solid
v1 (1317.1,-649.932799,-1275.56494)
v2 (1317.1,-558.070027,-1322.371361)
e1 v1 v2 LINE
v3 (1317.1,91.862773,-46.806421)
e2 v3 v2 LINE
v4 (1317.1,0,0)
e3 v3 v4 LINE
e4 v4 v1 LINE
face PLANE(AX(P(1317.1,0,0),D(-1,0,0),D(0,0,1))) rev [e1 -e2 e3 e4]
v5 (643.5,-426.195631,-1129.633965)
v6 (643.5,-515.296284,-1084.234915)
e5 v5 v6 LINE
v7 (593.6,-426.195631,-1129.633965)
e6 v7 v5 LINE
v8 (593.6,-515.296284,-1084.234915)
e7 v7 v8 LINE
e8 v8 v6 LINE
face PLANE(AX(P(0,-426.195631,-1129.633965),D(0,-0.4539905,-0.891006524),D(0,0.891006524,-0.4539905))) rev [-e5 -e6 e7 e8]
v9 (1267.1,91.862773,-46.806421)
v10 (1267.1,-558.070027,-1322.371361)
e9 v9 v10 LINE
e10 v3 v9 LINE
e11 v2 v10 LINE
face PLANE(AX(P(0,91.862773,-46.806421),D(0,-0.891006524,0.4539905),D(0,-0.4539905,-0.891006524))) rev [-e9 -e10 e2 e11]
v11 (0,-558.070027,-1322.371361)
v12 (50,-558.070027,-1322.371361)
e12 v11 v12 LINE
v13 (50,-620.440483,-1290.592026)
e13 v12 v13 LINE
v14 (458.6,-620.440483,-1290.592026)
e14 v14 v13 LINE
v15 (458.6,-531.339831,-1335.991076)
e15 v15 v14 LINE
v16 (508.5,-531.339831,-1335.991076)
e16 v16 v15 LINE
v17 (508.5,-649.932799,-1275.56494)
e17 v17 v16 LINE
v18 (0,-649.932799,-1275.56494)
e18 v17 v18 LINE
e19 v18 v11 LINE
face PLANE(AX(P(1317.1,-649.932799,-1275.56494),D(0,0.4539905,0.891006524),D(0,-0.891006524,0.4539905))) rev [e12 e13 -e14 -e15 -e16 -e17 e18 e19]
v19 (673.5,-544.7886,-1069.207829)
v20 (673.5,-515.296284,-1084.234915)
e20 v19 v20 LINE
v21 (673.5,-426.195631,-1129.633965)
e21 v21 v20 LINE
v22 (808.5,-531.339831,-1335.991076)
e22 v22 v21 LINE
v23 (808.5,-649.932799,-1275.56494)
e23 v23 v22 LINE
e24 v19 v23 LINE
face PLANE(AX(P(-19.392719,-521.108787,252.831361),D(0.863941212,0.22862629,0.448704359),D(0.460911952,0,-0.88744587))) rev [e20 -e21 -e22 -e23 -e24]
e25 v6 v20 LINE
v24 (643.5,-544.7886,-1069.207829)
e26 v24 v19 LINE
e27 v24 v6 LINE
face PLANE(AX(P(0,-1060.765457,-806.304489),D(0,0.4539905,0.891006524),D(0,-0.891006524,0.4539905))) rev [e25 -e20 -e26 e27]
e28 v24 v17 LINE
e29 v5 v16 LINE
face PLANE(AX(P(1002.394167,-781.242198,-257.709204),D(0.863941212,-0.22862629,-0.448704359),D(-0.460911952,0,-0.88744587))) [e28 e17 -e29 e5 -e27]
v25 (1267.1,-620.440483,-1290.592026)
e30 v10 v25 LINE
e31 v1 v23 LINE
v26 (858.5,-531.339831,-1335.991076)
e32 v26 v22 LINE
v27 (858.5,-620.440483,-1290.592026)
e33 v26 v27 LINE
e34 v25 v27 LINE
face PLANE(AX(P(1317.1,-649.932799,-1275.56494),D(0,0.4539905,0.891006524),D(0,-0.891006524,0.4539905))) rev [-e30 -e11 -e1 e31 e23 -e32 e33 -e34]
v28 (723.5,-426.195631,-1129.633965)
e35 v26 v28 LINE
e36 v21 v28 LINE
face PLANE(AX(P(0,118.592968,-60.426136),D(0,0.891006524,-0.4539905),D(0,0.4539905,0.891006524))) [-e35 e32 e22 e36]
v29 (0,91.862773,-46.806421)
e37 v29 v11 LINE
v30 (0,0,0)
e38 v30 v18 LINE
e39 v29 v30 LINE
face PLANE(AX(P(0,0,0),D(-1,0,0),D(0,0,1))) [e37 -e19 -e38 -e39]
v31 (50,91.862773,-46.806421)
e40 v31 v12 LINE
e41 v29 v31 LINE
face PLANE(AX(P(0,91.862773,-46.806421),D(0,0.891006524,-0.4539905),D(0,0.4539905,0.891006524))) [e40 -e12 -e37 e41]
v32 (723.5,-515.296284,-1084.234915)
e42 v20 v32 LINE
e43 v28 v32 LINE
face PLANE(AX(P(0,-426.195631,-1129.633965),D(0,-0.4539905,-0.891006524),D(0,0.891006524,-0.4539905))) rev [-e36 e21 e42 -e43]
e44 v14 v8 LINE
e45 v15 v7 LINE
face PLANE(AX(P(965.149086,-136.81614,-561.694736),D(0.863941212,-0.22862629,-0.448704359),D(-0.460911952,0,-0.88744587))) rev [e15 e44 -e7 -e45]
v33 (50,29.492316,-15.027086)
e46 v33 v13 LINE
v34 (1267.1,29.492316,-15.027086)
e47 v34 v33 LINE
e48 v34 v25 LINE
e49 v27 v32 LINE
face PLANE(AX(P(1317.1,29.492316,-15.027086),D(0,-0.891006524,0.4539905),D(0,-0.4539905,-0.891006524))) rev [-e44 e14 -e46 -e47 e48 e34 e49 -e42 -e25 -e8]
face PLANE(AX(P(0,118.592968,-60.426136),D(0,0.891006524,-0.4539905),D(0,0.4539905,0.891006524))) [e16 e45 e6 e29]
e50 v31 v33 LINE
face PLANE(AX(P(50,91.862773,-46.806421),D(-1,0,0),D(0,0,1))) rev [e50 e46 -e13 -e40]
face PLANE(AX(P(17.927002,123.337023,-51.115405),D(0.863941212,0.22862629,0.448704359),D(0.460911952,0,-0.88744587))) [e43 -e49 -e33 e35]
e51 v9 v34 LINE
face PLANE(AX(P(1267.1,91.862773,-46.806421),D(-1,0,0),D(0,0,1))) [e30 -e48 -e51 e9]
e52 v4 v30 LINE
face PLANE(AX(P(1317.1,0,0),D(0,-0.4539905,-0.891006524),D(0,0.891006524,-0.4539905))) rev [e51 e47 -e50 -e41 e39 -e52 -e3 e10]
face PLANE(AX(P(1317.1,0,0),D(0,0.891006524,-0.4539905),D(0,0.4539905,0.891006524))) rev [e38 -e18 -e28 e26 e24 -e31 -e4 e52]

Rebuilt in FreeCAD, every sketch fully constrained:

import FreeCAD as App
import Part
import Sketcher

V = App.Vector
Q = App.Units.Quantity

doc = App.newDocument("Part")
body = doc.addObject("PartDesign::Body", "Body")

# Sketch on YZ plane
sketch1 = body.newObject("Sketcher::SketchObject", "Sketch")
sketch1.AttachmentSupport = (doc.getObject("YZ_Plane"), [""])
sketch1.MapMode = "FlatFace"
sketch1.addGeometry([
    Part.LineSegment(V(0, 0, 0), V(-650, -1276, 0)),
    Part.LineSegment(V(-650, -1276, 0), V(-620, -1291, 0)),
    Part.LineSegment(V(-620, -1291, 0), V(29, -15, 0)),
    Part.LineSegment(V(29, -15, 0), V(0, 0, 0)),
], False)
sketch1.addConstraint([
    Sketcher.Constraint("Coincident", 0, 2, 1, 1),
    Sketcher.Constraint("Coincident", 1, 2, 2, 1),
    Sketcher.Constraint("Coincident", 2, 2, 3, 1),
    Sketcher.Constraint("Coincident", 3, 2, 0, 1),
    Sketcher.Constraint("Coincident", 3, 2, -1, 1),
    Sketcher.Constraint("Perpendicular", 0, 1),
    Sketcher.Constraint("Perpendicular", 1, 2),
    Sketcher.Constraint("Perpendicular", 2, 3),
    Sketcher.Constraint("Angle", 0, Q("-117 deg")),
    Sketcher.Constraint("Distance", 0, Q("1431.6 mm")),
    Sketcher.Constraint("Distance", 1, Q("33.1 mm")),
])
pad1 = body.newObject("PartDesign::Pad", "Pad")
pad1.Profile = sketch1
pad1.Length = 1317.1

# Sketch on an angled plane
sketch2 = body.newObject("Sketcher::SketchObject", "Sketch001")
sketch2.Placement = App.Placement(V(0, 29.492316, -15.027086), App.Rotation(V(1, 0, 0), V(0, -0.4539905, -0.891006524), V(0, 0.891006524, -0.4539905), "ZXY"))
sketch2.addGeometry([
    Part.LineSegment(V(808, 1432, 0), V(508, 1432, 0)),
    Part.LineSegment(V(508, 1432, 0), V(644, 1200, 0)),
    Part.LineSegment(V(644, 1200, 0), V(674, 1200, 0)),
    Part.LineSegment(V(674, 1200, 0), V(808, 1432, 0)),
], False)
sketch2.addConstraint([
    Sketcher.Constraint("Coincident", 0, 2, 1, 1),
    Sketcher.Constraint("Coincident", 1, 2, 2, 1),
    Sketcher.Constraint("Coincident", 2, 2, 3, 1),
    Sketcher.Constraint("Coincident", 3, 2, 0, 1),
    Sketcher.Constraint("Horizontal", 0),
    Sketcher.Constraint("Horizontal", 2),
    Sketcher.Constraint("Equal", 1, 3),
    Sketcher.Constraint("DistanceX", 0, 2, 0, 1, Q("300 mm")),
    Sketcher.Constraint("DistanceX", 2, 1, 2, 2, Q("30 mm")),
    Sketcher.Constraint("DistanceY", -1, 1, 1, 2, Q("1200 mm")),
    Sketcher.Constraint("DistanceX", -1, 1, 0, 2, Q("508.5 mm")),
    Sketcher.Constraint("DistanceY", -1, 1, 0, 2, Q("1431.6 mm")),
])
pocket1 = body.newObject("PartDesign::Pocket", "Pocket")
pocket1.Profile = sketch2
pocket1.Type = "ThroughAll"

# Sketch on an angled plane
sketch3 = body.newObject("Sketcher::SketchObject", "Sketch002")
sketch3.Placement = App.Placement(V(0, 29.492316, -15.027086), App.Rotation(V(1, 0, 0), V(0, -0.4539905, -0.891006524), V(0, 0.891006524, -0.4539905), "ZXY"))
sketch3.addGeometry([
    Part.LineSegment(V(0, 1432, 0), V(0, 0, 0)),  # 0
    Part.LineSegment(V(0, 0, 0), V(50, 0, 0)),  # 1
    Part.LineSegment(V(50, 0, 0), V(50, 1432, 0)),  # 2
    Part.LineSegment(V(50, 1432, 0), V(0, 1432, 0)),  # 3
    Part.LineSegment(V(1267, 1432, 0), V(1267, 0, 0)),  # 4
    Part.LineSegment(V(1267, 0, 0), V(1317, 0, 0)),  # 5
    Part.LineSegment(V(1317, 0, 0), V(1317, 1432, 0)),  # 6
    Part.LineSegment(V(1317, 1432, 0), V(1267, 1432, 0)),  # 7
], False)
sketch3.addConstraint([
    Sketcher.Constraint("Coincident", 0, 2, 1, 1),
    Sketcher.Constraint("Coincident", 1, 2, 2, 1),
    Sketcher.Constraint("Coincident", 2, 2, 3, 1),
    Sketcher.Constraint("Coincident", 3, 2, 0, 1),
    Sketcher.Constraint("Coincident", 4, 2, 5, 1),
    Sketcher.Constraint("Coincident", 5, 2, 6, 1),
    Sketcher.Constraint("Coincident", 6, 2, 7, 1),
    Sketcher.Constraint("Coincident", 7, 2, 4, 1),
    Sketcher.Constraint("Vertical", 0),
    Sketcher.Constraint("Horizontal", 1),
    Sketcher.Constraint("Vertical", 2),
    Sketcher.Constraint("Horizontal", 3),
    Sketcher.Constraint("Vertical", 4),
    Sketcher.Constraint("Horizontal", 5),
    Sketcher.Constraint("Vertical", 6),
    Sketcher.Constraint("Horizontal", 7),
    Sketcher.Constraint("Coincident", 0, 2, -1, 1),
    Sketcher.Constraint("PointOnObject", 4, 2, -1),
    Sketcher.Constraint("Horizontal", 3, 2, 6, 2),
    Sketcher.Constraint("Equal", 3, 5),
    Sketcher.Constraint("DistanceX", 1, 1, 1, 2, Q("50 mm")),
    Sketcher.Constraint("DistanceY", 0, 2, 0, 1, Q("1431.6 mm")),
    Sketcher.Constraint("DistanceX", -1, 1, 4, 2, Q("1267.1 mm")),
])
pad2 = body.newObject("PartDesign::Pad", "Pad001")
pad2.Profile = sketch3
pad2.Length = 70

# Sketch on an angled plane
sketch4 = body.newObject("Sketcher::SketchObject", "Sketch003")
sketch4.Placement = App.Placement(V(0, 29.492316, -15.027086), App.Rotation(V(1, 0, 0), V(0, -0.4539905, -0.891006524), V(0, 0.891006524, -0.4539905), "ZXY"))
sketch4.addGeometry([
    Part.LineSegment(V(808, 1432, 0), V(674, 1200, 0)),  # 0
    Part.LineSegment(V(674, 1200, 0), V(724, 1200, 0)),  # 1
    Part.LineSegment(V(724, 1200, 0), V(858, 1432, 0)),  # 2
    Part.LineSegment(V(858, 1432, 0), V(808, 1432, 0)),  # 3
    Part.LineSegment(V(459, 1432, 0), V(594, 1200, 0)),  # 4
    Part.LineSegment(V(594, 1200, 0), V(644, 1200, 0)),  # 5
    Part.LineSegment(V(644, 1200, 0), V(508, 1432, 0)),  # 6
    Part.LineSegment(V(508, 1432, 0), V(459, 1432, 0)),  # 7
], False)
sketch4.addConstraint([
    Sketcher.Constraint("Coincident", 0, 2, 1, 1),
    Sketcher.Constraint("Coincident", 1, 2, 2, 1),
    Sketcher.Constraint("Coincident", 2, 2, 3, 1),
    Sketcher.Constraint("Coincident", 3, 2, 0, 1),
    Sketcher.Constraint("Coincident", 4, 2, 5, 1),
    Sketcher.Constraint("Coincident", 5, 2, 6, 1),
    Sketcher.Constraint("Coincident", 6, 2, 7, 1),
    Sketcher.Constraint("Coincident", 7, 2, 4, 1),
    Sketcher.Constraint("Horizontal", 1),
    Sketcher.Constraint("Horizontal", 3),
    Sketcher.Constraint("Horizontal", 5),
    Sketcher.Constraint("Horizontal", 7),
    Sketcher.Constraint("Parallel", 0, 2),
    Sketcher.Constraint("Parallel", 4, 6),
    Sketcher.Constraint("Horizontal", 1, 2, 4, 2),
    Sketcher.Constraint("Horizontal", 3, 2, 6, 2),
    Sketcher.Constraint("Equal", 2, 4),
    Sketcher.Constraint("DistanceX", 1, 1, 1, 2, Q("50 mm")),
    Sketcher.Constraint("DistanceX", 5, 1, 5, 2, Q("49.9 mm")),
    Sketcher.Constraint("DistanceY", -1, 1, 0, 2, Q("1200 mm")),
    Sketcher.Constraint("DistanceX", 1, 2, 2, 2, Q("135 mm")),
    Sketcher.Constraint("DistanceX", 5, 2, 0, 2, Q("30 mm")),
    Sketcher.Constraint("DistanceX", -1, 1, 0, 2, Q("673.5 mm")),
    Sketcher.Constraint("DistanceY", -1, 1, 2, 2, Q("1431.6 mm")),
])
pad3 = body.newObject("PartDesign::Pad", "Pad002")
pad3.Profile = sketch4
pad3.Length = 100

doc.recompute()
